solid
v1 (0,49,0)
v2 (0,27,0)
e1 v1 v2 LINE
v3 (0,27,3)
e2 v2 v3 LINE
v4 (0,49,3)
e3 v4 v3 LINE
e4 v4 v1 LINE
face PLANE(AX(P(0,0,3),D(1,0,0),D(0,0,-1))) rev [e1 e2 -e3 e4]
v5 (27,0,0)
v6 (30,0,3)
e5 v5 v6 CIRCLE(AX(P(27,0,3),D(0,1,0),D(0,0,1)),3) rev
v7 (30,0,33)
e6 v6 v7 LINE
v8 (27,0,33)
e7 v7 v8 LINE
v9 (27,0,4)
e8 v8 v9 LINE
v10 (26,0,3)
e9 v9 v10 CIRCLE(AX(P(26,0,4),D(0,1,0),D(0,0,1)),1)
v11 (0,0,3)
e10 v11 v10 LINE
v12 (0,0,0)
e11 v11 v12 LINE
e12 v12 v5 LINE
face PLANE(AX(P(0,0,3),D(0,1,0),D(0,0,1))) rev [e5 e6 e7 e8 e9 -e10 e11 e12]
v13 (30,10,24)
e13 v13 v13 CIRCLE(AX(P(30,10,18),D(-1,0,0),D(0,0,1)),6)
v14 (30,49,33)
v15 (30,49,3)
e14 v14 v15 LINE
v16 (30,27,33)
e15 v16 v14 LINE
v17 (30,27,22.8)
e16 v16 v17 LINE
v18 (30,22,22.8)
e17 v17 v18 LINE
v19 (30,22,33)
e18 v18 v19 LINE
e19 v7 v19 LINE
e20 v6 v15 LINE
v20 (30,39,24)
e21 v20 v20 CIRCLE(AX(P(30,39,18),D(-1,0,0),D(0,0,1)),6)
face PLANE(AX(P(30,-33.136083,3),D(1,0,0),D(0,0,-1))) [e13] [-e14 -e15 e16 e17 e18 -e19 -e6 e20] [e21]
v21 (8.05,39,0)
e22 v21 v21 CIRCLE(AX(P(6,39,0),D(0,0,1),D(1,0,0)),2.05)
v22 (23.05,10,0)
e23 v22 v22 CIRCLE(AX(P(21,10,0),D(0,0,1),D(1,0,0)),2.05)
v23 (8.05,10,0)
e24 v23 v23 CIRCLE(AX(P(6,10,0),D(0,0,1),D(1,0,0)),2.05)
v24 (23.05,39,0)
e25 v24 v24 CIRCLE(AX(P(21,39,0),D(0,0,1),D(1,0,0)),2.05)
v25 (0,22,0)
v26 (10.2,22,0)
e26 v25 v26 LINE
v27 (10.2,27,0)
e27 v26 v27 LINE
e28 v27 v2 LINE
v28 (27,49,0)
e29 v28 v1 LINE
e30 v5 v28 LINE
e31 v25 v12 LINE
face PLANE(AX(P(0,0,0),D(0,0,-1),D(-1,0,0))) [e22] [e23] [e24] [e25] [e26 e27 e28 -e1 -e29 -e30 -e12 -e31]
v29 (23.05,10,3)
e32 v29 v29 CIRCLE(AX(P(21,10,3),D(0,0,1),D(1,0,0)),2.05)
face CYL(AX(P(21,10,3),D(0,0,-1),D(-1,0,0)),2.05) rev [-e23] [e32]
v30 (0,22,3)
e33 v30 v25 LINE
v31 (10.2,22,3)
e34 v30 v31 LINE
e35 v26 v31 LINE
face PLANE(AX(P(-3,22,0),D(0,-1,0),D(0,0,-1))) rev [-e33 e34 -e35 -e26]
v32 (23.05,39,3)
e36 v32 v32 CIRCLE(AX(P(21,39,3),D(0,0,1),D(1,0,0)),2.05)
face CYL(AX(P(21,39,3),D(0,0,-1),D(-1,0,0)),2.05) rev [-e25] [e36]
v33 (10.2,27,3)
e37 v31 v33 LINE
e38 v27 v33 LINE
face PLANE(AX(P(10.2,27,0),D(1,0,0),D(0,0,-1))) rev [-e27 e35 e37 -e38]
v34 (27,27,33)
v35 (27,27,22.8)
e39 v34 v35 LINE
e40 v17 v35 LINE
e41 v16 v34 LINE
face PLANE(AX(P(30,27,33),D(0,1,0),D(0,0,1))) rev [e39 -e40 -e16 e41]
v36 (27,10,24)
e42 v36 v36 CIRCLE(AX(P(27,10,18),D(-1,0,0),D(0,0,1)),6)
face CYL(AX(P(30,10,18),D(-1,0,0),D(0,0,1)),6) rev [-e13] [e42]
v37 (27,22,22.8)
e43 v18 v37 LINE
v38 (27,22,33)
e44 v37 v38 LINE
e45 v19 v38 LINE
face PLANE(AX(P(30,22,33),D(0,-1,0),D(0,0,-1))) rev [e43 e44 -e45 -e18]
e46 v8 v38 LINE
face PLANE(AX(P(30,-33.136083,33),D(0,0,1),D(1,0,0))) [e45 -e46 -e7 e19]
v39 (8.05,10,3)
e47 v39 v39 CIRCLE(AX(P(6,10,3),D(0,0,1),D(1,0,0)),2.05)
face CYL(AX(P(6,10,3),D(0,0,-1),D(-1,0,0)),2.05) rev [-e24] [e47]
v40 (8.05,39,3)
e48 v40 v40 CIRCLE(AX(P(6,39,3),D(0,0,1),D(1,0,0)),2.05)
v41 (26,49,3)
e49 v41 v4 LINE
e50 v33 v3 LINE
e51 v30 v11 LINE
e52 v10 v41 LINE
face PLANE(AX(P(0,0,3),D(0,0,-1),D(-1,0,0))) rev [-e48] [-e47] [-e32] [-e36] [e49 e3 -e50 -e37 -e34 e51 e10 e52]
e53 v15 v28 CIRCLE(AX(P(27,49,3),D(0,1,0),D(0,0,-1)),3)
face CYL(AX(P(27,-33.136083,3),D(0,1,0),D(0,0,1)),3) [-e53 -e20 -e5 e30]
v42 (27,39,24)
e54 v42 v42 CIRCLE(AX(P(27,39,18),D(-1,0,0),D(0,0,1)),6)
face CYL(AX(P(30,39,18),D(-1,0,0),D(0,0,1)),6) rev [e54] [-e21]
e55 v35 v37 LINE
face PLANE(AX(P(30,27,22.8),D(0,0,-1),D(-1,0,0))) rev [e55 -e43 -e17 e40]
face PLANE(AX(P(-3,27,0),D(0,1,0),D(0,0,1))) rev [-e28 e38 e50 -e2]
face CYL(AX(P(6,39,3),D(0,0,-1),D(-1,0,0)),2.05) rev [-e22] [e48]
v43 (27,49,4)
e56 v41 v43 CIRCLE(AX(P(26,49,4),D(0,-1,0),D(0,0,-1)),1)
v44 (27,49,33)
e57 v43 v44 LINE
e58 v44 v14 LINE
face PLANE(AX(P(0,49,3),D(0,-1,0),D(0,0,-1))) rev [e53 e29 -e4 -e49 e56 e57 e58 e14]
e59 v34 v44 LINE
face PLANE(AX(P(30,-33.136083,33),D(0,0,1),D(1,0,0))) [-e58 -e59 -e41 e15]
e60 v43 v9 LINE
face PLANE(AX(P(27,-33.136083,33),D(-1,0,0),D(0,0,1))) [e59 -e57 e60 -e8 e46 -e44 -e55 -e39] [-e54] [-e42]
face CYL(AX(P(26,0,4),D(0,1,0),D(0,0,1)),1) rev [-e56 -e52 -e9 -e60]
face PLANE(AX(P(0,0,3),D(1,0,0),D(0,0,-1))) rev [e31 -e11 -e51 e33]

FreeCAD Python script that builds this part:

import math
import FreeCAD as App
import Part
import Sketcher


def edges_at(feature, points):
    """Names of the edges that pass closest to the given points."""
    edges = feature.Shape.Edges
    near = lambda p: min(range(len(edges)), key=lambda i: edges[i].distToShape(Part.Vertex(*p))[0])
    return sorted({f"Edge{near(p) + 1}" for p in points})

doc = App.newDocument("Part")
body = doc.addObject("PartDesign::Body", "Body")

sketch1 = body.newObject("Sketcher::SketchObject", "Sketch")
sketch1.AttachmentSupport = (doc.getObject("XY_Plane"), [""])
sketch1.MapMode = "FlatFace"
sketch1.addGeometry([
    Part.LineSegment(App.Vector(0, 49, 0), App.Vector(0, 0, 0)),
    Part.LineSegment(App.Vector(0, 0, 0), App.Vector(27, 0, 0)),
    Part.LineSegment(App.Vector(27, 0, 0), App.Vector(27, 49, 0)),
    Part.LineSegment(App.Vector(27, 49, 0), App.Vector(0, 49, 0)),
    Part.Circle(App.Vector(6, 10, 0), App.Vector(0, 0, 1), 2),
    Part.Circle(App.Vector(21, 10, 0), App.Vector(0, 0, 1), 2),
    Part.Circle(App.Vector(6, 39, 0), App.Vector(0, 0, 1), 2),
    Part.Circle(App.Vector(21, 39, 0), App.Vector(0, 0, 1), 2),
], False)
sketch1.addConstraint([
    Sketcher.Constraint("Coincident", 0, 2, 1, 1),
    Sketcher.Constraint("Coincident", 1, 2, 2, 1),
    Sketcher.Constraint("Coincident", 2, 2, 3, 1),
    Sketcher.Constraint("Coincident", 3, 2, 0, 1),
    Sketcher.Constraint("Vertical", 0),
    Sketcher.Constraint("Horizontal", 1),
    Sketcher.Constraint("Vertical", 2),
    Sketcher.Constraint("Horizontal", 3),
    Sketcher.Constraint("Coincident", 0, 2, -1, 1),
    Sketcher.Constraint("Equal", 4, 5),
    Sketcher.Constraint("Equal", 5, 6),
    Sketcher.Constraint("Equal", 6, 7),
    Sketcher.Constraint("Horizontal", 4, 3, 5, 3),
    Sketcher.Constraint("Horizontal", 6, 3, 7, 3),
    Sketcher.Constraint("Vertical", 4, 3, 6, 3),
    Sketcher.Constraint("Vertical", 5, 3, 7, 3),
    Sketcher.Constraint("Diameter", 4, 4.1),
    Sketcher.Constraint("DistanceX", 1, 1, 1, 2, 27.0),
    Sketcher.Constraint("DistanceY", 0, 2, 0, 1, 49.0),
    Sketcher.Constraint("DistanceX", -1, 1, 4, 3, 6.0),
    Sketcher.Constraint("DistanceY", -1, 1, 4, 3, 10.0),
    Sketcher.Constraint("DistanceX", -1, 1, 5, 3, 21.0),
    Sketcher.Constraint("DistanceY", -1, 1, 6, 3, 39.0),
])
pad1 = body.newObject("PartDesign::Pad", "Pad")
pad1.Profile = sketch1
pad1.Length = 3

sketch2 = body.newObject("Sketcher::SketchObject", "Sketch001")
sketch2.AttachmentSupport = (doc.getObject("XZ_Plane"), [""])
sketch2.MapMode = "FlatFace"
sketch2.AttachmentOffset = App.Placement(App.Vector(0, 0, -49), App.Rotation())
sketch2.addGeometry([
    Part.LineSegment(App.Vector(30, 33, 0), App.Vector(30, 3, 0)),
    Part.ArcOfCircle(Part.Circle(App.Vector(27, 3, 0), App.Vector(0, 0, 1), 3), math.radians(-90), math.radians(0)),
    Part.LineSegment(App.Vector(27, 0, 0), App.Vector(27, 33, 0)),
    Part.LineSegment(App.Vector(27, 33, 0), App.Vector(30, 33, 0)),
], False)
sketch2.addConstraint([
    Sketcher.Constraint("Tangent", 0, 2, 1, 2),
    Sketcher.Constraint("Coincident", 1, 1, 2, 1),
    Sketcher.Constraint("Coincident", 2, 2, 3, 1),
    Sketcher.Constraint("Coincident", 3, 2, 0, 1),
    Sketcher.Constraint("Vertical", 0),
    Sketcher.Constraint("Vertical", 2),
    Sketcher.Constraint("Horizontal", 3),
    Sketcher.Constraint("PointOnObject", 1, 1, -1),
    Sketcher.Constraint("Radius", 1, 3.0),
    Sketcher.Constraint("DistanceX", 3, 1, 3, 2, 3.0),
    Sketcher.Constraint("DistanceY", 0, 2, 0, 1, 30.0),
    Sketcher.Constraint("DistanceX", -1, 1, 1, 3, 27.0),
])
pad2 = body.newObject("PartDesign::Pad", "Pad001")
pad2.Profile = sketch2
pad2.Length = 49

sketch3 = body.newObject("Sketcher::SketchObject", "Sketch002")
sketch3.AttachmentSupport = (doc.getObject("YZ_Plane"), [""])
sketch3.MapMode = "FlatFace"
sketch3.AttachmentOffset = App.Placement(App.Vector(0, 0, 27), App.Rotation())
sketch3.addGeometry([
    Part.Circle(App.Vector(39, 18, 0), App.Vector(0, 0, 1), 6),
    Part.Circle(App.Vector(10, 18, 0), App.Vector(0, 0, 1), 6),
], False)
sketch3.addConstraint([
    Sketcher.Constraint("Equal", 0, 1),
    Sketcher.Constraint("Horizontal", 0, 3, 1, 3),
    Sketcher.Constraint("Diameter", 0, 12.0),
    Sketcher.Constraint("DistanceX", -1, 1, 0, 3, 39.0),
    Sketcher.Constraint("DistanceY", -1, 1, 0, 3, 18.0),
    Sketcher.Constraint("DistanceX", -1, 1, 1, 3, 10.0),
])
pocket1 = body.newObject("PartDesign::Pocket", "Pocket")
pocket1.Profile = sketch3
pocket1.Type = "ThroughAll"
pocket1.Reversed = True
doc.recompute()

fillet = body.newObject("PartDesign::Fillet", "Fillet")
fillet.Base = (pocket1, edges_at(pocket1, [(27, 24.5, 3)]))
fillet.Radius = 1

sketch4 = body.newObject("Sketcher::SketchObject", "Sketch003")
sketch4.AttachmentSupport = (doc.getObject("XY_Plane"), [""])
sketch4.MapMode = "FlatFace"
sketch4.AttachmentOffset = App.Placement(App.Vector(0, 0, 3), App.Rotation())
sketch4.addGeometry([
    Part.LineSegment(App.Vector(-3, 27, 0), App.Vector(-3, 22, 0)),
    Part.LineSegment(App.Vector(-3, 22, 0), App.Vector(10, 22, 0)),
    Part.LineSegment(App.Vector(10, 22, 0), App.Vector(10, 27, 0)),
    Part.LineSegment(App.Vector(10, 27, 0), App.Vector(-3, 27, 0)),
], False)
sketch4.addConstraint([
    Sketcher.Constraint("Coincident", 0, 2, 1, 1),
    Sketcher.Constraint("Coincident", 1, 2, 2, 1),
    Sketcher.Constraint("Coincident", 2, 2, 3, 1),
    Sketcher.Constraint("Coincident", 3, 2, 0, 1),
    Sketcher.Constraint("Vertical", 0),
    Sketcher.Constraint("Horizontal", 1),
    Sketcher.Constraint("Vertical", 2),
    Sketcher.Constraint("Horizontal", 3),
    Sketcher.Constraint("DistanceY", 0, 2, 0, 1, 5.0),
    Sketcher.Constraint("DistanceX", 1, 1, 1, 2, 13.2),
    Sketcher.Constraint("DistanceX", 0, 2, -1, 1, 3.0),
    Sketcher.Constraint("DistanceY", -1, 1, 0, 2, 22.0),
])
pocket2 = body.newObject("PartDesign::Pocket", "Pocket001")
pocket2.Profile = sketch4
pocket2.Type = "ThroughAll"

sketch5 = body.newObject("Sketcher::SketchObject", "Sketch004")
sketch5.AttachmentSupport = (doc.getObject("YZ_Plane"), [""])
sketch5.MapMode = "FlatFace"
sketch5.AttachmentOffset = App.Placement(App.Vector(0, 0, 27), App.Rotation())
sketch5.addGeometry([
    Part.LineSegment(App.Vector(27, 23, 0), App.Vector(22, 23, 0)),
    Part.LineSegment(App.Vector(22, 23, 0), App.Vector(22, 33, 0)),
    Part.LineSegment(App.Vector(22, 33, 0), App.Vector(27, 33, 0)),
    Part.LineSegment(App.Vector(27, 33, 0), App.Vector(27, 23, 0)),
], False)
sketch5.addConstraint([
    Sketcher.Constraint("Coincident", 0, 2, 1, 1),
    Sketcher.Constraint("Coincident", 1, 2, 2, 1),
    Sketcher.Constraint("Coincident", 2, 2, 3, 1),
    Sketcher.Constraint("Coincident", 3, 2, 0, 1),
    Sketcher.Constraint("Horizontal", 0),
    Sketcher.Constraint("Vertical", 1),
    Sketcher.Constraint("Horizontal", 2),
    Sketcher.Constraint("Vertical", 3),
    Sketcher.Constraint("DistanceX", 0, 2, 0, 1, 5.0),
    Sketcher.Constraint("DistanceY", 1, 1, 1, 2, 10.2),
    Sketcher.Constraint("DistanceX", -1, 1, 0, 2, 22.0),
    Sketcher.Constraint("DistanceY", -1, 1, 1, 2, 33.0),
])
pocket3 = body.newObject("PartDesign::Pocket", "Pocket002")
pocket3.Profile = sketch5
pocket3.Type = "ThroughAll"
pocket3.Midplane = True

doc.recompute()
